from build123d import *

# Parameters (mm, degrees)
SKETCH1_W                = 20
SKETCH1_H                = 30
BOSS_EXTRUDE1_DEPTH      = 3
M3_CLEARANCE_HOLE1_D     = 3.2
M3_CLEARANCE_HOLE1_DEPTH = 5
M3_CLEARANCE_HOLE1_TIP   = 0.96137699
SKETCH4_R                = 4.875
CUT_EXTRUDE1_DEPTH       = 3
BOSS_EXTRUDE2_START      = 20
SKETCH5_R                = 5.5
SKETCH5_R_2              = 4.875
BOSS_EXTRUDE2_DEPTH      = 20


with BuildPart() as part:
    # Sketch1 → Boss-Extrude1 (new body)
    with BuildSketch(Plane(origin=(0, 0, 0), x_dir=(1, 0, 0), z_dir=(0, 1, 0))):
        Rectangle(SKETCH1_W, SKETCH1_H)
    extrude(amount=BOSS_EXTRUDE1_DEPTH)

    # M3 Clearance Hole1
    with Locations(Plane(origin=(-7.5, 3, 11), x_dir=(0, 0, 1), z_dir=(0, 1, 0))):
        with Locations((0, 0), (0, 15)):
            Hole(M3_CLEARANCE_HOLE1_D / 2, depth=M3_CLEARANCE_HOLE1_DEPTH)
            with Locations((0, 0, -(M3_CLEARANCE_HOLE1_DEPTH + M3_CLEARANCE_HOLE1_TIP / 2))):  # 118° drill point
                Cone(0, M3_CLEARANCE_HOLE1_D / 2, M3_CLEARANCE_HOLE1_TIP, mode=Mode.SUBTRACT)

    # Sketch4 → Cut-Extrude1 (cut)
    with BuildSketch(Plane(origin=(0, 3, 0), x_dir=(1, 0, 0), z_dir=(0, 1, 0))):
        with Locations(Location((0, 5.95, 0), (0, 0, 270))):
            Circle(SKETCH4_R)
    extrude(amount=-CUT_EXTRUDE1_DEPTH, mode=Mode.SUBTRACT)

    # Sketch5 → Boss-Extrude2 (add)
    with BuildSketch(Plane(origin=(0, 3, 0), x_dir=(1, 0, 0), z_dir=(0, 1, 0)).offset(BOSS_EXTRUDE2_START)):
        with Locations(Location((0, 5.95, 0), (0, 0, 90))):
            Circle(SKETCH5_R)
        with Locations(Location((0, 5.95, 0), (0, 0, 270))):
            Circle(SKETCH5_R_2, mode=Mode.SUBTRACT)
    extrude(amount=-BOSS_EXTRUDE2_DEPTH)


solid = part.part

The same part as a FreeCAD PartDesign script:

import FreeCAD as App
import Part
import Sketcher
Q = App.Units.Quantity


def add_polygon(sketch, points):
    """Adds a closed chain of lines whose ends are joined by coincident constraints."""
    first, n = sketch.GeometryCount, len(points)
    for a, b in zip(points, points[1:] + points[:1]):
        sketch.addGeometry(Part.LineSegment(App.Vector(*a, 0), App.Vector(*b, 0)), False)
    for i in range(n):
        sketch.addConstraint(Sketcher.Constraint("Coincident", first + i, 2, first + (i + 1) % n, 1))

doc = App.newDocument("Part")
body = doc.addObject("PartDesign::Body", "Body")

# Sketch on XZ plane
sketch1 = body.newObject("Sketcher::SketchObject", "Sketch")
sketch1.AttachmentSupport = (doc.getObject("XZ_Plane"), [""])
sketch1.MapMode = "FlatFace"
add_polygon(sketch1, [(-10, -15), (-10, 15), (10, 15), (10, -15)])  # lines 0-3
sketch1.addConstraint([
    Sketcher.Constraint("Vertical", 0),
    Sketcher.Constraint("Horizontal", 1),
    Sketcher.Constraint("Vertical", 2),
    Sketcher.Constraint("Horizontal", 3),
    Sketcher.Constraint("Symmetric", 0, 2, 2, 2, -1, 1),
    Sketcher.Constraint("DistanceX", 1, 1, 1, 2, Q("20 mm")),
    Sketcher.Constraint("DistanceY", 0, 1, 0, 2, Q("30 mm")),
])
pad1 = body.newObject("PartDesign::Pad", "Pad")
pad1.Profile = sketch1
pad1.Length = 3
pad1.Reversed = True

# Sketch on XZ plane
sketch2 = body.newObject("Sketcher::SketchObject", "Sketch001")
sketch2.AttachmentSupport = (doc.getObject("XZ_Plane"), [""])
sketch2.MapMode = "FlatFace"
sketch2.AttachmentOffset = App.Placement(App.Vector(0, 0, -3), App.Rotation())
sketch2.addGeometry([
    Part.Circle(App.Vector(-7.5, 11, 0), App.Vector(0, 0, 1), 1.6),
    Part.Circle(App.Vector(7.5, 11, 0), App.Vector(0, 0, 1), 1.6),
], False)
sketch2.addConstraint([
    Sketcher.Constraint("Equal", 0, 1),
    Sketcher.Constraint("Symmetric", 0, 3, 1, 3, -2),
    Sketcher.Constraint("Diameter", 0, Q("3.2 mm")),
    Sketcher.Constraint("DistanceY", -1, 1, 0, 3, Q("11 mm")),
    Sketcher.Constraint("DistanceX", 0, 3, 1, 3, Q("15 mm")),
])
doc.recompute()
hole = body.newObject("PartDesign::Hole", "Hole")
hole.Profile = sketch2
hole.ThreadType = "None"
hole.Diameter = 3.2
hole.DepthType = "Dimension"
hole.Depth = 5
hole.DrillPoint = "Angled"
hole.DrillPointAngle = 118
hole.Reversed = True

# Sketch on XZ plane
sketch3 = body.newObject("Sketcher::SketchObject", "Sketch002")
sketch3.AttachmentSupport = (doc.getObject("XZ_Plane"), [""])
sketch3.MapMode = "FlatFace"
sketch3.AttachmentOffset = App.Placement(App.Vector(0, 0, -3), App.Rotation())
sketch3.addGeometry(Part.Circle(App.Vector(0, -6, 0), App.Vector(0, 0, 1), 4.9), False)
sketch3.addConstraint([
    Sketcher.Constraint("PointOnObject", 0, 3, -2),
    Sketcher.Constraint("Diameter", 0, Q("9.75 mm")),
    Sketcher.Constraint("DistanceY", 0, 3, -1, 1, Q("5.95 mm")),
])
pocket1 = body.newObject("PartDesign::Pocket", "Pocket")
pocket1.Profile = sketch3
pocket1.Length = 3
pocket1.Reversed = True

# Sketch on XZ plane
sketch4 = body.newObject("Sketcher::SketchObject", "Sketch003")
sketch4.AttachmentSupport = (doc.getObject("XZ_Plane"), [""])
sketch4.MapMode = "FlatFace"
sketch4.AttachmentOffset = App.Placement(App.Vector(0, 0, -23), App.Rotation())
sketch4.addGeometry([
    Part.Circle(App.Vector(0, -6, 0), App.Vector(0, 0, 1), 5.5),
    Part.Circle(App.Vector(0, -6, 0), App.Vector(0, 0, 1), 4.9),
], False)
sketch4.addConstraint([
    Sketcher.Constraint("Coincident", 1, 3, 0, 3),
    Sketcher.Constraint("PointOnObject", 0, 3, -2),
    Sketcher.Constraint("Diameter", 0, Q("11 mm")),
    Sketcher.Constraint("Diameter", 1, Q("9.75 mm")),
    Sketcher.Constraint("DistanceY", 0, 3, -1, 1, Q("5.95 mm")),
])
pad2 = body.newObject("PartDesign::Pad", "Pad001")
pad2.Profile = sketch4
pad2.Length = 20

doc.recompute()
